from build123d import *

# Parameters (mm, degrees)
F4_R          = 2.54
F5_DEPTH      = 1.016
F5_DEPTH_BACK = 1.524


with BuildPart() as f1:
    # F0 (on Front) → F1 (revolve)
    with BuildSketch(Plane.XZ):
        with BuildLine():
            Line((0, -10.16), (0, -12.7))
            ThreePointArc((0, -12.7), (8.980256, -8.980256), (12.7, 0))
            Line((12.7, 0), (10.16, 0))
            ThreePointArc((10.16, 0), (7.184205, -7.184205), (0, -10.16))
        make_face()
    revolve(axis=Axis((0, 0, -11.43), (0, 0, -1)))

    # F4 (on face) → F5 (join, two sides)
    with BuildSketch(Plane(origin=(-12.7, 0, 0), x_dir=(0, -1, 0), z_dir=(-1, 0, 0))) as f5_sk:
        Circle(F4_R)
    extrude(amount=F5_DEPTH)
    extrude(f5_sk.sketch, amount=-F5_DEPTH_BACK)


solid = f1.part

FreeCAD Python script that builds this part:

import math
import FreeCAD as App
import Part
import Sketcher

V = App.Vector
Q = App.Units.Quantity

doc = App.newDocument("Part")
params = doc.addObject("Spreadsheet::Sheet", "Params")
for row, (alias, value) in enumerate([
    ("sketch1_radius", "0.5 in"),
    ("sketch1_radius2", "0.4 in"),
    ("revolution_angle", "360 deg"),
    ("sketch2_diameter", "0.2 in"),
    ("pad1_length", "0.04 in"),
    ("pad1_length2", "0.06 in"),
], start=1):
    params.set(f"A{row}", alias)
    params.set(f"B{row}", "=" + value)
    params.setAlias(f"B{row}", alias)

body = doc.addObject("PartDesign::Body", "Body")

sketch1 = body.newObject("Sketcher::SketchObject", "Sketch")
sketch1.AttachmentSupport = (doc.getObject("XZ_Plane"), [""])
sketch1.MapMode = "FlatFace"
sketch1.addGeometry(Part.LineSegment(V(0, -10.2, 0), V(0, -12.7, 0)), False)
sketch1.addGeometry(Part.ArcOfCircle(Part.Circle(V(0, 0, 0), V(0, 0, 1), 12.7), math.radians(-90), math.radians(0)), False)
sketch1.addGeometry(Part.LineSegment(V(12.7, 0, 0), V(10.2, 0, 0)), False)
sketch1.addGeometry(Part.ArcOfCircle(Part.Circle(V(0, 0, 0), V(0, 0, 1), 10.2), math.radians(-90), math.radians(0)), False)
sketch1.addConstraint(Sketcher.Constraint("Coincident", 0, 2, 1, 1))
sketch1.addConstraint(Sketcher.Constraint("Coincident", 1, 2, 2, 1))
sketch1.addConstraint(Sketcher.Constraint("Coincident", 2, 2, 3, 2))
sketch1.addConstraint(Sketcher.Constraint("Coincident", 3, 1, 0, 1))
sketch1.addConstraint(Sketcher.Constraint("Vertical", 0))
sketch1.addConstraint(Sketcher.Constraint("Horizontal", 2))
sketch1.addConstraint(Sketcher.Constraint("Coincident", 1, 3, -1, 1))
sketch1.addConstraint(Sketcher.Constraint("Coincident", 3, 3, -1, 1))
sketch1.addConstraint(Sketcher.Constraint("PointOnObject", 0, 2, -2))
sketch1.addConstraint(Sketcher.Constraint("PointOnObject", 1, 2, -1))
sketch1.addConstraint(Sketcher.Constraint("Radius", 1, Q("0.5 in")))
sketch1.addConstraint(Sketcher.Constraint("Radius", 3, Q("0.4 in")))
sketch1.setExpression("Constraints[10]", "Params.sketch1_radius")
sketch1.setExpression("Constraints[11]", "Params.sketch1_radius2")
revolution = body.newObject("PartDesign::Revolution", "Revolution")
revolution.Profile = sketch1
revolution.ReferenceAxis = (sketch1, ["V_Axis"])
revolution.setExpression("Angle", "Params.revolution_angle")

sketch2 = body.newObject("Sketcher::SketchObject", "Sketch001")
sketch2.AttachmentSupport = (doc.getObject("YZ_Plane"), [""])
sketch2.MapMode = "FlatFace"
sketch2.AttachmentOffset = App.Placement(V(0, 0, -0.5 * 25.4), App.Rotation())
sketch2.addGeometry(Part.Circle(V(0, 0, 0), V(0, 0, 1), 2.5), False)
sketch2.addConstraint(Sketcher.Constraint("Coincident", 0, 3, -1, 1))
sketch2.addConstraint(Sketcher.Constraint("Diameter", 0, Q("0.2 in")))
sketch2.setExpression("Constraints[1]", "Params.sketch2_diameter")
pad1 = body.newObject("PartDesign::Pad", "Pad")
pad1.Profile = sketch2
pad1.Type = "TwoLengths"
pad1.setExpression("Length", "Params.pad1_length")
pad1.setExpression("Length2", "Params.pad1_length2")
pad1.Reversed = True

doc.recompute()
